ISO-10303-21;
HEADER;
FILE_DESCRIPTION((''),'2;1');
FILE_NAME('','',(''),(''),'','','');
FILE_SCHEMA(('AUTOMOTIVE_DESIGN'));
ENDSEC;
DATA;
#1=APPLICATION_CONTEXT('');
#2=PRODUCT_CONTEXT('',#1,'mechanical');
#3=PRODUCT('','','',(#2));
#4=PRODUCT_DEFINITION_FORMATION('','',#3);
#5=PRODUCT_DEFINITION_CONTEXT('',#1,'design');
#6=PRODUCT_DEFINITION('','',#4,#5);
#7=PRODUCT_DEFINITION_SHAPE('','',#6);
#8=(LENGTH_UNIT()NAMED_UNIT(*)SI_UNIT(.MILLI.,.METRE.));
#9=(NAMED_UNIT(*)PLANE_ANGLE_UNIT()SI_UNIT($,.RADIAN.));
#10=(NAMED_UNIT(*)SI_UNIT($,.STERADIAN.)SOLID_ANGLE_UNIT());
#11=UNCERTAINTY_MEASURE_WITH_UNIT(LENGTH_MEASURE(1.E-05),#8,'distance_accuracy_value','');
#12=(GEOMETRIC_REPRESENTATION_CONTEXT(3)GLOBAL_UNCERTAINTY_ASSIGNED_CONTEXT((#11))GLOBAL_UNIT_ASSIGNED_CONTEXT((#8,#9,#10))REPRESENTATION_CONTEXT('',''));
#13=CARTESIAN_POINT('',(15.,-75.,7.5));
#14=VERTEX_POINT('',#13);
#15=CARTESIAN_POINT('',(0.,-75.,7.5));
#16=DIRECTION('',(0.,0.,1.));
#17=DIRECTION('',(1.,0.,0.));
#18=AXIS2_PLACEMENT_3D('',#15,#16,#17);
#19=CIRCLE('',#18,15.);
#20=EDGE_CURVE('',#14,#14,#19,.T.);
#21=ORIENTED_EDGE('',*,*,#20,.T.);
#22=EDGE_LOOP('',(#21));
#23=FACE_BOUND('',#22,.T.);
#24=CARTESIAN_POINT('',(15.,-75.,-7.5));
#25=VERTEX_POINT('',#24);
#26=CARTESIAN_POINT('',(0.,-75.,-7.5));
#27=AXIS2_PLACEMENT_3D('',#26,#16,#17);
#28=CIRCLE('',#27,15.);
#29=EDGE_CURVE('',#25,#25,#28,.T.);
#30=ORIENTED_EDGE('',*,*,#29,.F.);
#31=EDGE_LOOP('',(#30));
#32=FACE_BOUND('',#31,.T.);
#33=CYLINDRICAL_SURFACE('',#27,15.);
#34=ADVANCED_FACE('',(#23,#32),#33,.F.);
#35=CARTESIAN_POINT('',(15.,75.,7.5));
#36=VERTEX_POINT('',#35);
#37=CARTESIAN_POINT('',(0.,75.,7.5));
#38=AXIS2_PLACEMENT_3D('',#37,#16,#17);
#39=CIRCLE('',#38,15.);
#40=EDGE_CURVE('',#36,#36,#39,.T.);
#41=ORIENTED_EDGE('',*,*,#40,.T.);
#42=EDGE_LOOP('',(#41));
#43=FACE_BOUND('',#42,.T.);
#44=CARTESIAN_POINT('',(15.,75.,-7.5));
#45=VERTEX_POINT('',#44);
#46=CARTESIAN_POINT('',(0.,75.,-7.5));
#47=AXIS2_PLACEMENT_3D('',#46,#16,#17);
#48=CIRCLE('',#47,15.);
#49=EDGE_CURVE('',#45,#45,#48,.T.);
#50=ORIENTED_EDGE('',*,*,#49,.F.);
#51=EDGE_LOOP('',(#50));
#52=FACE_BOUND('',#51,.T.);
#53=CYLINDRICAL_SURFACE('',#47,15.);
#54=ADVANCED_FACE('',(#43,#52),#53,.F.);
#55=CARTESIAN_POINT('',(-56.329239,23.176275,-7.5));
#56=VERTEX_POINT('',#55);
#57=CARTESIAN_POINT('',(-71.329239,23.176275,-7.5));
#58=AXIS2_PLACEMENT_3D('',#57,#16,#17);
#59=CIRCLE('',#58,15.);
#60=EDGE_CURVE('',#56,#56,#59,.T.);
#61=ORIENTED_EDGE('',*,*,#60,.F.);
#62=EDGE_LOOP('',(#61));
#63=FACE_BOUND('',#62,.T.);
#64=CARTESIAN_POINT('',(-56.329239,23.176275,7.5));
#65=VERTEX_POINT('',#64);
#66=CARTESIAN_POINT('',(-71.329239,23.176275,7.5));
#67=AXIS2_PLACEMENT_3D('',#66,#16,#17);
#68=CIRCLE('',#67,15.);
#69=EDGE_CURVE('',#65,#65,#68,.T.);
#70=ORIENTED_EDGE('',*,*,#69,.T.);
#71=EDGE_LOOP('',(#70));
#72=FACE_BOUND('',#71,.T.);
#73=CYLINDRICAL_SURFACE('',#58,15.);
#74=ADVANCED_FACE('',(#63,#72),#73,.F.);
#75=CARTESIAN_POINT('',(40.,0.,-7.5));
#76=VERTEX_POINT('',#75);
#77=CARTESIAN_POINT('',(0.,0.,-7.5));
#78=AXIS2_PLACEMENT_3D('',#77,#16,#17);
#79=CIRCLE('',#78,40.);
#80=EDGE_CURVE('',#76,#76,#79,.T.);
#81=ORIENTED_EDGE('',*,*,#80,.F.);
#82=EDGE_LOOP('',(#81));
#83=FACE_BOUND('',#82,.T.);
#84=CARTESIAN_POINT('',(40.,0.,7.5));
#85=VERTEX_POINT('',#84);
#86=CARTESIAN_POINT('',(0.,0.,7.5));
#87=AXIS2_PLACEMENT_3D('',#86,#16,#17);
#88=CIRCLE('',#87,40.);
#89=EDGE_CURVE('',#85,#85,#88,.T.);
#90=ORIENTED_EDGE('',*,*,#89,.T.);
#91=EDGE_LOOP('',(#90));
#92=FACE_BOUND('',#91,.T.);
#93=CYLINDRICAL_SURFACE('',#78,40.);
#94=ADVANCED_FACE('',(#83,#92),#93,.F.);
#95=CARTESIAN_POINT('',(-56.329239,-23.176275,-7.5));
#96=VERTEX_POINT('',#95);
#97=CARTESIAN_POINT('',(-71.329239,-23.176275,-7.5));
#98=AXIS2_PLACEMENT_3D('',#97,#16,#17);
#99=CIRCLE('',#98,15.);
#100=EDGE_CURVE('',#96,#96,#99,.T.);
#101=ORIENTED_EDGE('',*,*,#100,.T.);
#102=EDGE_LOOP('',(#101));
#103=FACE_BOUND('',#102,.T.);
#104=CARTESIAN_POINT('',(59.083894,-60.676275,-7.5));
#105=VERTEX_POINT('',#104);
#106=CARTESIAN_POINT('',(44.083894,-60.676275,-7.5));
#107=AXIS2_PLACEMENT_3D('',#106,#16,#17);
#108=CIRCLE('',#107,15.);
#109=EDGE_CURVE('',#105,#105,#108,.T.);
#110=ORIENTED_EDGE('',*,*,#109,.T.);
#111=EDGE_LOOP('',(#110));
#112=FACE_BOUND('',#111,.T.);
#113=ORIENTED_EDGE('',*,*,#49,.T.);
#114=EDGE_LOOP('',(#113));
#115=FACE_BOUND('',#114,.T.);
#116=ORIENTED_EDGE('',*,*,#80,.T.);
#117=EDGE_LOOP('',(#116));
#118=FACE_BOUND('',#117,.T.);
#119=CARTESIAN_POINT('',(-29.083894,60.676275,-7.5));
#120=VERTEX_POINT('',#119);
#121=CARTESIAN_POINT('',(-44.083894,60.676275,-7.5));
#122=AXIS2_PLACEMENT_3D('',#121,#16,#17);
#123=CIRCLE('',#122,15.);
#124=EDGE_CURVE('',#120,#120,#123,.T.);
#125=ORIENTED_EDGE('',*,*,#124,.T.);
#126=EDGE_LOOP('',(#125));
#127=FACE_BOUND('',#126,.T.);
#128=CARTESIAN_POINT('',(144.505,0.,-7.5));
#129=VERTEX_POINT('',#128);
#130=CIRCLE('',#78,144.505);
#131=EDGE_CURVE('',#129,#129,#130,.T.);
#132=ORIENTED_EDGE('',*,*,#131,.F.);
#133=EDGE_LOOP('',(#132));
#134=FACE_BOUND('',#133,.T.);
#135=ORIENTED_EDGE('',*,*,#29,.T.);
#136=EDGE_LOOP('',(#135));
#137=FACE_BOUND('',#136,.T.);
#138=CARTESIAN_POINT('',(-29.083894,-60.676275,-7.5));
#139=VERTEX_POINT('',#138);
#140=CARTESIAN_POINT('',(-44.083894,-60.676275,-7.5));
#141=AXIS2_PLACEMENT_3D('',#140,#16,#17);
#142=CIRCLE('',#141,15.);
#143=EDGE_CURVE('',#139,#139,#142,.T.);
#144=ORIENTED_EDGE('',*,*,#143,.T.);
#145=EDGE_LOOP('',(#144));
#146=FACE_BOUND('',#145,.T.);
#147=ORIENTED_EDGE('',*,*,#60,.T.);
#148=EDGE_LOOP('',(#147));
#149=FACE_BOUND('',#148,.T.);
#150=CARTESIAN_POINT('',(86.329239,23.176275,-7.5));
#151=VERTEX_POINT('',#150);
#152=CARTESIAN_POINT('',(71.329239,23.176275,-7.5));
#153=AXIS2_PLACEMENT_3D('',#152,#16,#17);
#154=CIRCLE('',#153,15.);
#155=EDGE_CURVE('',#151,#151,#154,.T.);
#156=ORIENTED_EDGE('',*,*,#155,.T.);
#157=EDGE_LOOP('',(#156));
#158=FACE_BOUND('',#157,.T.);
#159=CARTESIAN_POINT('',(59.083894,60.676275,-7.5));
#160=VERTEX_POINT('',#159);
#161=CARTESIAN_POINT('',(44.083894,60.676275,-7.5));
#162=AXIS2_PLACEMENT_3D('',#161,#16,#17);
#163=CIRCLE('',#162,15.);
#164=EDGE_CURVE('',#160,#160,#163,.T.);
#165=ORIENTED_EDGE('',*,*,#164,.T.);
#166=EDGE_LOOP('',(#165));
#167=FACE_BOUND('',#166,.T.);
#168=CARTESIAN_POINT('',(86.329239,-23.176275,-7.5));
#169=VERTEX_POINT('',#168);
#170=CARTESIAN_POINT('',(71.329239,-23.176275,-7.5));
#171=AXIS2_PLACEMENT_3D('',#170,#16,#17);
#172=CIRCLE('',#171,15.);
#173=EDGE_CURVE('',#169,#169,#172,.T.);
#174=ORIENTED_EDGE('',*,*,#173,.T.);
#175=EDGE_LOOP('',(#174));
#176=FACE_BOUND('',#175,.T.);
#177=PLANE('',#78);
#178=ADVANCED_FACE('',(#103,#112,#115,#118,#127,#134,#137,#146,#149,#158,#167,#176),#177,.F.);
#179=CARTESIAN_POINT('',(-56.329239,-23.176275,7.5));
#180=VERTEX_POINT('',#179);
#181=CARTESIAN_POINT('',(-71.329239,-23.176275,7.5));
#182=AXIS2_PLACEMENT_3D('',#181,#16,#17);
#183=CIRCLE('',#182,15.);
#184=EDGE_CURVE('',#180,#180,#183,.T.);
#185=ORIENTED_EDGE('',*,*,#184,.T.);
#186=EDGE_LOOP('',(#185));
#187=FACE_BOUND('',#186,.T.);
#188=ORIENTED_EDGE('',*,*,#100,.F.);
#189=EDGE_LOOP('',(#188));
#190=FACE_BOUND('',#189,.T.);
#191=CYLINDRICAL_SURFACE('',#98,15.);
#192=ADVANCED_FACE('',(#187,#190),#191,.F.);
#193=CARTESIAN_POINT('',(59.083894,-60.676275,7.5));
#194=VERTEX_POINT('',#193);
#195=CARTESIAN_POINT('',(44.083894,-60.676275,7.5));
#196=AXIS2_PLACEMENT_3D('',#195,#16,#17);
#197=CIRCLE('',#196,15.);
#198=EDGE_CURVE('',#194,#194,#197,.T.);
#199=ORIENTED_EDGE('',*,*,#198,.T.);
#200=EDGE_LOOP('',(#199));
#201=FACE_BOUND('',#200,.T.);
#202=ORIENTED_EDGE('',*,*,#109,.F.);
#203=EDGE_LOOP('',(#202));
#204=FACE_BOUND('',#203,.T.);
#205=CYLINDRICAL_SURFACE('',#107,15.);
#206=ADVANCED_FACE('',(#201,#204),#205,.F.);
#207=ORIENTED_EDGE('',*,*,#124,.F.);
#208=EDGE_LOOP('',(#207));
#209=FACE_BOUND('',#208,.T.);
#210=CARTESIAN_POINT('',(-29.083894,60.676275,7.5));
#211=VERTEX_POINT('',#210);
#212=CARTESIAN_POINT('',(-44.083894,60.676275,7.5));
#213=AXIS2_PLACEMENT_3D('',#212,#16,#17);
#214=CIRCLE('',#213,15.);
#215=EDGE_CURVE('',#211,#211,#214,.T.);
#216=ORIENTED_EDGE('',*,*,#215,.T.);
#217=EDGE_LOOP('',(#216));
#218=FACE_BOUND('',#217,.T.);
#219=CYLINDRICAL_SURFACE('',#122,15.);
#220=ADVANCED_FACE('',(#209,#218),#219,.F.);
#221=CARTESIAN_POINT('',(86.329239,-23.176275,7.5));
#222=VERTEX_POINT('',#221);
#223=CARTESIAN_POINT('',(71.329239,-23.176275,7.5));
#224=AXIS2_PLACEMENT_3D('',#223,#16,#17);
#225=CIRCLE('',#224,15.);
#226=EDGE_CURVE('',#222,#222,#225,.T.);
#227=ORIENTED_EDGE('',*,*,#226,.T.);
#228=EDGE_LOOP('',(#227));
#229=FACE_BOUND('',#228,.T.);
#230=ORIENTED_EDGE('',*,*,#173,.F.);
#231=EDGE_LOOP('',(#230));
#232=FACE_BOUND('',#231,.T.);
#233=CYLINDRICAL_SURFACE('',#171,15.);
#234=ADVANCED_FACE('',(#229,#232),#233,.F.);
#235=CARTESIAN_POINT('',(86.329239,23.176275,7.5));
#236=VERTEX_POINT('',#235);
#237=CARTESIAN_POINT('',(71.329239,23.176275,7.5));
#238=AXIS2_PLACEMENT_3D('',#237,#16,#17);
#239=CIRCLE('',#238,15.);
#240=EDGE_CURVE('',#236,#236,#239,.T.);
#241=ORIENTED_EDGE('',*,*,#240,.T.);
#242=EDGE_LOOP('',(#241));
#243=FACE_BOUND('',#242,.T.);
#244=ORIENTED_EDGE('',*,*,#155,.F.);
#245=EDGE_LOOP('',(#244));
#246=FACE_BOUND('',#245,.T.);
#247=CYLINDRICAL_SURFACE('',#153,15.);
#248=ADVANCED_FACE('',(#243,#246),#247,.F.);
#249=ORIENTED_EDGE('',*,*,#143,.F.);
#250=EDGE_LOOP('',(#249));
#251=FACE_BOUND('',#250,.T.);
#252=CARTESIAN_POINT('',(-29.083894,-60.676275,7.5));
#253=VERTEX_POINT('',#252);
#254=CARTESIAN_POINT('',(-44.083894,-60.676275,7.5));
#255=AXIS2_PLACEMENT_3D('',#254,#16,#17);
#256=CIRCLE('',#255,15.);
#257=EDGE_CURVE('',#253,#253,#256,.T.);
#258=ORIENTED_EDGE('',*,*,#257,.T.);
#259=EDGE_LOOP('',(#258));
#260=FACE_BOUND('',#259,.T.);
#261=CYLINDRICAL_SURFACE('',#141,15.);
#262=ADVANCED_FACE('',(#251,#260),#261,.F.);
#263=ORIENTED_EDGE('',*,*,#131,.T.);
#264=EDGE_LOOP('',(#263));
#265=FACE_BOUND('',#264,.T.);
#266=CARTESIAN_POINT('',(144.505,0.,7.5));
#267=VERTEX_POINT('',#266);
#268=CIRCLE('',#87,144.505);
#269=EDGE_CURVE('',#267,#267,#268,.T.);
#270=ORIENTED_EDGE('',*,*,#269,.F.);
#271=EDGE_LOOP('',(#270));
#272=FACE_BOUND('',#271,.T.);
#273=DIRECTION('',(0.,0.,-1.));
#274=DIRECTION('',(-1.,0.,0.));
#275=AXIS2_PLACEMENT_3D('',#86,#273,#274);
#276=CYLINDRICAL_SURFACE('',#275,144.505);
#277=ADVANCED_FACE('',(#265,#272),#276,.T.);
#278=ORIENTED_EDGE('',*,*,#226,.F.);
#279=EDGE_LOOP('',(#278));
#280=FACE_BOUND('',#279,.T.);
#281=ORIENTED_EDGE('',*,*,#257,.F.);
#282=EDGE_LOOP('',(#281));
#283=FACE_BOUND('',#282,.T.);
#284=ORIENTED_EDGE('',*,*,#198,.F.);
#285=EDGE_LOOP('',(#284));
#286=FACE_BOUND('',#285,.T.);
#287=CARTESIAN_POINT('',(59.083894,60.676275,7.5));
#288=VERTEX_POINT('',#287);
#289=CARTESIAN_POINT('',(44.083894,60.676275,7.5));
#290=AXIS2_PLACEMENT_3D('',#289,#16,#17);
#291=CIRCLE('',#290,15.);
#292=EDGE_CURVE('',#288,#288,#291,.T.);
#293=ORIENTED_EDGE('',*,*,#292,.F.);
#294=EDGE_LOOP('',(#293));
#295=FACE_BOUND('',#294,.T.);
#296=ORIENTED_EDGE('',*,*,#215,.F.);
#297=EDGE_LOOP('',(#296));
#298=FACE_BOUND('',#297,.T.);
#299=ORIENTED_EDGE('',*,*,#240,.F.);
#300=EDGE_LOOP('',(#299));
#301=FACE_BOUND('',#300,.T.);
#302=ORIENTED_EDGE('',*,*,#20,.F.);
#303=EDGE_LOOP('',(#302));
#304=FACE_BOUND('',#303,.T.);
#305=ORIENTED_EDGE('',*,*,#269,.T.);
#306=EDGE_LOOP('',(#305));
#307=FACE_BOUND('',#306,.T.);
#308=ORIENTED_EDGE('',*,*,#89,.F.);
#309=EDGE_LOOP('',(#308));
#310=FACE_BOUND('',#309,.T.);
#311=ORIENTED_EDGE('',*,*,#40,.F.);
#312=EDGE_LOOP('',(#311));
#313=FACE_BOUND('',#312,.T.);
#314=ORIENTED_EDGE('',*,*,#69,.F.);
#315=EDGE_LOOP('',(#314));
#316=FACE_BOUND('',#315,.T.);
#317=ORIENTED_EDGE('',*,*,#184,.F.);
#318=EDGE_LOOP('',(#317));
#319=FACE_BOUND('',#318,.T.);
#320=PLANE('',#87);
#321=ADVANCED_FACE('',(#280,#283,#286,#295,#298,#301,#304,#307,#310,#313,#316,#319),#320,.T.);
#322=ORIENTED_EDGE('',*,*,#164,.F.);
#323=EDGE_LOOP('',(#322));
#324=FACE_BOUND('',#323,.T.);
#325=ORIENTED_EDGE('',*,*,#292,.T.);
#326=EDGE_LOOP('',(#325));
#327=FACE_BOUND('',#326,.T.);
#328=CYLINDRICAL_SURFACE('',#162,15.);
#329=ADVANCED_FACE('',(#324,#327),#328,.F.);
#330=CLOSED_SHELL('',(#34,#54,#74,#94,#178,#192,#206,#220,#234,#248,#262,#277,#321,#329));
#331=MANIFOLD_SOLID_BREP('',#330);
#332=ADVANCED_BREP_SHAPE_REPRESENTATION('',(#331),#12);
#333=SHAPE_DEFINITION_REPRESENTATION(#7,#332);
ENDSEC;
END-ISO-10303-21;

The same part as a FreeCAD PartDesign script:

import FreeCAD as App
import Part
import Sketcher
from FreeCAD import Vector

doc = App.newDocument("Part")
body = doc.addObject("PartDesign::Body", "Body")

sketch1 = doc.addObject("Sketcher::SketchObject", "Sketch")
body.addObject(sketch1)
sketch1.AttachmentSupport = (doc.XY_Plane, [""])
sketch1.MapMode = "FlatFace"
sketch1.addGeometry(Part.Circle(Vector(0, 0, 0), Vector(0, 0, 1), 145), False)
sketch1.addConstraint(Sketcher.Constraint("Coincident", 0, 3, -1, 1))
sketch1.addConstraint(Sketcher.Constraint("Diameter", 0, 289.01))
pad1 = doc.addObject("PartDesign::Pad", "Pad")
body.addObject(pad1)
pad1.Profile = sketch1
pad1.Length = 15
pad1.Midplane = True

sketch2 = doc.addObject("Sketcher::SketchObject", "Sketch001")
body.addObject(sketch2)
sketch2.AttachmentSupport = (doc.XY_Plane, [""])
sketch2.MapMode = "FlatFace"
sketch2.AttachmentOffset = App.Placement(Vector(0, 0, 7.5), App.Rotation())
sketch2.addGeometry(Part.Circle(Vector(0, 0, 0), Vector(0, 0, 1), 40), False)
sketch2.addGeometry(Part.Circle(Vector(0, 75, 0), Vector(0, 0, 1), 15), False)
sketch2.addGeometry(Part.Circle(Vector(44, 61, 0), Vector(0, 0, 1), 15), False)
sketch2.addGeometry(Part.Circle(Vector(71, 23, 0), Vector(0, 0, 1), 15), False)
sketch2.addGeometry(Part.Circle(Vector(71, -23, 0), Vector(0, 0, 1), 15), False)
sketch2.addGeometry(Part.Circle(Vector(44, -61, 0), Vector(0, 0, 1), 15), False)
sketch2.addGeometry(Part.Circle(Vector(0, -75, 0), Vector(0, 0, 1), 15), False)
sketch2.addGeometry(Part.Circle(Vector(-44, -61, 0), Vector(0, 0, 1), 15), False)
sketch2.addGeometry(Part.Circle(Vector(-71, -23, 0), Vector(0, 0, 1), 15), False)
sketch2.addGeometry(Part.Circle(Vector(-71, 23, 0), Vector(0, 0, 1), 15), False)
sketch2.addGeometry(Part.Circle(Vector(-44, 61, 0), Vector(0, 0, 1), 15), False)
sketch2.addConstraint(Sketcher.Constraint("Coincident", 0, 3, -1, 1))
sketch2.addConstraint(Sketcher.Constraint("Equal", 1, 2))
sketch2.addConstraint(Sketcher.Constraint("Equal", 2, 3))
sketch2.addConstraint(Sketcher.Constraint("Equal", 3, 4))
sketch2.addConstraint(Sketcher.Constraint("Equal", 4, 5))
sketch2.addConstraint(Sketcher.Constraint("Equal", 5, 6))
sketch2.addConstraint(Sketcher.Constraint("Equal", 6, 7))
sketch2.addConstraint(Sketcher.Constraint("Equal", 7, 8))
sketch2.addConstraint(Sketcher.Constraint("Equal", 8, 9))
sketch2.addConstraint(Sketcher.Constraint("Equal", 9, 10))
sketch2.addConstraint(Sketcher.Constraint("Symmetric", 1, 3, 6, 3, -1, 1))
sketch2.addConstraint(Sketcher.Constraint("Symmetric", 2, 3, 7, 3, -1, 1))
sketch2.addConstraint(Sketcher.Constraint("Symmetric", 3, 3, 8, 3, -1, 1))
sketch2.addConstraint(Sketcher.Constraint("Symmetric", 4, 3, 9, 3, -1, 1))
sketch2.addConstraint(Sketcher.Constraint("Symmetric", 5, 3, 10, 3, -1, 1))
sketch2.addConstraint(Sketcher.Constraint("Symmetric", 5, 3, 7, 3, -2))
sketch2.addConstraint(Sketcher.Constraint("Symmetric", 4, 3, 8, 3, -2))
sketch2.addConstraint(Sketcher.Constraint("PointOnObject", 1, 3, -2))
sketch2.addConstraint(Sketcher.Constraint("Diameter", 0, 80.0))
sketch2.addConstraint(Sketcher.Constraint("Diameter", 1, 30.0))
sketch2.addConstraint(Sketcher.Constraint("DistanceY", -1, 1, 1, 3, 75.0))
sketch2.addConstraint(Sketcher.Constraint("DistanceY", 3, 3, 2, 3, 37.5))
sketch2.addConstraint(Sketcher.Constraint("DistanceX", -1, 1, 3, 3, 71.329239))
sketch2.addConstraint(Sketcher.Constraint("DistanceY", 4, 3, 3, 3, 46.352549))
sketch2.addConstraint(Sketcher.Constraint("DistanceX", -1, 1, 2, 3, 44.083894))
pocket1 = doc.addObject("PartDesign::Pocket", "Pocket")
body.addObject(pocket1)
pocket1.Profile = sketch2
pocket1.Type = "ThroughAll"

doc.recompute()
